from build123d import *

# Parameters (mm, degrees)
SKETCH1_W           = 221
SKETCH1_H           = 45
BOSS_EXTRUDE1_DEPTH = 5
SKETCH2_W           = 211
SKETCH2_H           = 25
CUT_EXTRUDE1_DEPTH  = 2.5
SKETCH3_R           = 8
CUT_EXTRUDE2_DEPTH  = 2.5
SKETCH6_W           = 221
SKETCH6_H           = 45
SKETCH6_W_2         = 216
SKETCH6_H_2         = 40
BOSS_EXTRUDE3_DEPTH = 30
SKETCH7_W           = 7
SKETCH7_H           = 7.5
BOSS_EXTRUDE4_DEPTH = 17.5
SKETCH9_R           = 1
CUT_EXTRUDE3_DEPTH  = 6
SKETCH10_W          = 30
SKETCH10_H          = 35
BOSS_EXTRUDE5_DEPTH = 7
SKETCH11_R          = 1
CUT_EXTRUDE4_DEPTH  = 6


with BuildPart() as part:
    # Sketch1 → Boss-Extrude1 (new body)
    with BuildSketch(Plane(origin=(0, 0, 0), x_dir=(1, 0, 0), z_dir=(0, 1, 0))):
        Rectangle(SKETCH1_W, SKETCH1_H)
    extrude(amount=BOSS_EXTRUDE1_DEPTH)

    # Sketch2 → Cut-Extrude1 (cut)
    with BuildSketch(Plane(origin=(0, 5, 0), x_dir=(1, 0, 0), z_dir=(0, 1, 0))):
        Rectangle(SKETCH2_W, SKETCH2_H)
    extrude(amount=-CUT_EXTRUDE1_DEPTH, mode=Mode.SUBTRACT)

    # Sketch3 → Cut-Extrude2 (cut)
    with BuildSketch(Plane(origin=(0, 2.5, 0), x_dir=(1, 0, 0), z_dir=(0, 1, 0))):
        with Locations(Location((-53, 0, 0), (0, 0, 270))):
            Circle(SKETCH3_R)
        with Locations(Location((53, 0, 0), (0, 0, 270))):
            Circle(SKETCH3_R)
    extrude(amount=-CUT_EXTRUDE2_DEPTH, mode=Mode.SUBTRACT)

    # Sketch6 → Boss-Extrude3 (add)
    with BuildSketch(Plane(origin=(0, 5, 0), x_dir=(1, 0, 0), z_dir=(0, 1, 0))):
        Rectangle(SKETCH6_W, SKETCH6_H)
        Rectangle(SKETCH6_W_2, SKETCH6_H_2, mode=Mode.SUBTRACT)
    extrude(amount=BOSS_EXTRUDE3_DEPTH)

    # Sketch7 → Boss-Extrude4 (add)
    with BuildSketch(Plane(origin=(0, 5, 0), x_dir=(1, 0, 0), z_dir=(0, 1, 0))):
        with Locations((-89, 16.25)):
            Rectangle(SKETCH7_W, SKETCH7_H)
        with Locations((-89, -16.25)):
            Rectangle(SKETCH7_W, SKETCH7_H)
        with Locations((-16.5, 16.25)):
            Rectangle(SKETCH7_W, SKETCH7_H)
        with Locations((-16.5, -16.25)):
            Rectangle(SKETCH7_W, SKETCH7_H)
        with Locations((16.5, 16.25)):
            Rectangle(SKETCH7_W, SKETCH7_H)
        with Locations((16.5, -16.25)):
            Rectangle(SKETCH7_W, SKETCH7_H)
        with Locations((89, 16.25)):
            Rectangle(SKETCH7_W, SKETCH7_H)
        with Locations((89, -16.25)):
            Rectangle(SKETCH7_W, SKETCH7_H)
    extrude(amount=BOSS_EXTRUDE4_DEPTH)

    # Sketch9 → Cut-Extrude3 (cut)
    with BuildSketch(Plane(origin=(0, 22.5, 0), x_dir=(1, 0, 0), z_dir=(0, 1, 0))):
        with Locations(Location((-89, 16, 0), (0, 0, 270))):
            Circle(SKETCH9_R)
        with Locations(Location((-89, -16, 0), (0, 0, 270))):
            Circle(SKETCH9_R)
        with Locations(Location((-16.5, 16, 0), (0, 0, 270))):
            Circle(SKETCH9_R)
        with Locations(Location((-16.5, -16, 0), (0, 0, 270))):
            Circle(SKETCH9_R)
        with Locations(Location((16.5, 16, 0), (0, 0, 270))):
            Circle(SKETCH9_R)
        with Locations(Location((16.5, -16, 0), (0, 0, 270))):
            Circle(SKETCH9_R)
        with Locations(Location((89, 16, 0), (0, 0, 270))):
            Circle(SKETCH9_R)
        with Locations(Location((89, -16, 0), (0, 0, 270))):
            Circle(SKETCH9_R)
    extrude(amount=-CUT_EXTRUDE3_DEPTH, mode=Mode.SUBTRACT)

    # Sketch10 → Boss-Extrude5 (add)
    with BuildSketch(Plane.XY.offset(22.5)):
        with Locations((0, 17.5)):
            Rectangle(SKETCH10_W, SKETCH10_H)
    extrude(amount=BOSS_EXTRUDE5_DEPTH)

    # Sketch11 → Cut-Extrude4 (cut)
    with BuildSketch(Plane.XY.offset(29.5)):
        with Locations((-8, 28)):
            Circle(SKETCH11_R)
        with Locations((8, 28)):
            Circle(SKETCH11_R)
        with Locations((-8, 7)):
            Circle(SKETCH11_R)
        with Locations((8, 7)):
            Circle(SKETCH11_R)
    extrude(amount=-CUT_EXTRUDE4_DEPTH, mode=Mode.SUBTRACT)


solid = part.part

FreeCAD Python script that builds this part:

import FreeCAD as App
import Part
import Sketcher

V = App.Vector
Q = App.Units.Quantity


def add_polygon(sketch, points):
    """Adds a closed chain of lines whose ends are joined by coincident constraints."""
    first, n = sketch.GeometryCount, len(points)
    for a, b in zip(points, points[1:] + points[:1]):
        sketch.addGeometry(Part.LineSegment(App.Vector(*a, 0), App.Vector(*b, 0)), False)
    for i in range(n):
        sketch.addConstraint(Sketcher.Constraint("Coincident", first + i, 2, first + (i + 1) % n, 1))

doc = App.newDocument("Part")
body = doc.addObject("PartDesign::Body", "Body")

# Sketch on XZ plane
sketch1 = body.newObject("Sketcher::SketchObject", "Sketch")
sketch1.AttachmentSupport = (doc.getObject("XZ_Plane"), [""])
sketch1.MapMode = "FlatFace"
add_polygon(sketch1, [(-110.5, -22.5), (-110.5, 22.5), (110.5, 22.5), (110.5, -22.5)])  # lines 0-3
sketch1.addConstraint([
    Sketcher.Constraint("Vertical", 0),
    Sketcher.Constraint("Horizontal", 1),
    Sketcher.Constraint("Vertical", 2),
    Sketcher.Constraint("Horizontal", 3),
    Sketcher.Constraint("Symmetric", 0, 2, 2, 2, -1, 1),
    Sketcher.Constraint("DistanceX", 1, 1, 1, 2, Q("221 mm")),
    Sketcher.Constraint("DistanceY", 0, 1, 0, 2, Q("45 mm")),
])
pad1 = body.newObject("PartDesign::Pad", "Pad")
pad1.Profile = sketch1
pad1.Length = 5
pad1.Reversed = True

# Sketch on XZ plane
sketch2 = body.newObject("Sketcher::SketchObject", "Sketch001")
sketch2.AttachmentSupport = (doc.getObject("XZ_Plane"), [""])
sketch2.MapMode = "FlatFace"
sketch2.AttachmentOffset = App.Placement(V(0, 0, -5), App.Rotation())
add_polygon(sketch2, [(-105.5, -12.5), (-105.5, 12.5), (105.5, 12.5), (105.5, -12.5)])  # lines 0-3
sketch2.addConstraint([
    Sketcher.Constraint("Vertical", 0),
    Sketcher.Constraint("Horizontal", 1),
    Sketcher.Constraint("Vertical", 2),
    Sketcher.Constraint("Horizontal", 3),
    Sketcher.Constraint("Symmetric", 0, 2, 2, 2, -1, 1),
    Sketcher.Constraint("DistanceX", 1, 1, 1, 2, Q("211 mm")),
    Sketcher.Constraint("DistanceY", 0, 1, 0, 2, Q("25 mm")),
])
pocket1 = body.newObject("PartDesign::Pocket", "Pocket")
pocket1.Profile = sketch2
pocket1.Length = 2.5
pocket1.Reversed = True

# Sketch on XZ plane
sketch3 = body.newObject("Sketcher::SketchObject", "Sketch002")
sketch3.AttachmentSupport = (doc.getObject("XZ_Plane"), [""])
sketch3.MapMode = "FlatFace"
sketch3.AttachmentOffset = App.Placement(V(0, 0, -2.5), App.Rotation())
sketch3.addGeometry([
    Part.Circle(V(-53, 0, 0), V(0, 0, 1), 8),
    Part.Circle(V(53, 0, 0), V(0, 0, 1), 8),
], False)
sketch3.addConstraint([
    Sketcher.Constraint("Equal", 0, 1),
    Sketcher.Constraint("Symmetric", 0, 3, 1, 3, -1, 1),
    Sketcher.Constraint("PointOnObject", 0, 3, -1),
    Sketcher.Constraint("Diameter", 0, Q("16 mm")),
    Sketcher.Constraint("DistanceX", 0, 3, -1, 1, Q("53 mm")),
])
pocket2 = body.newObject("PartDesign::Pocket", "Pocket001")
pocket2.Profile = sketch3
pocket2.Length = 2.5
pocket2.Reversed = True

# Sketch on XZ plane
sketch4 = body.newObject("Sketcher::SketchObject", "Sketch003")
sketch4.AttachmentSupport = (doc.getObject("XZ_Plane"), [""])
sketch4.MapMode = "FlatFace"
sketch4.AttachmentOffset = App.Placement(V(0, 0, -5), App.Rotation())
add_polygon(sketch4, [(-110.5, -22.5), (-110.5, 22.5), (110.5, 22.5), (110.5, -22.5)])  # lines 0-3
add_polygon(sketch4, [(108, 20), (-108, 20), (-108, -20), (108, -20)])  # lines 4-7
sketch4.addConstraint([
    Sketcher.Constraint("Vertical", 0),
    Sketcher.Constraint("Horizontal", 1),
    Sketcher.Constraint("Vertical", 2),
    Sketcher.Constraint("Horizontal", 3),
    Sketcher.Constraint("Horizontal", 4),
    Sketcher.Constraint("Vertical", 5),
    Sketcher.Constraint("Horizontal", 6),
    Sketcher.Constraint("Vertical", 7),
    Sketcher.Constraint("Symmetric", 0, 2, 2, 2, -1, 1),
    Sketcher.Constraint("Symmetric", 4, 2, 6, 2, -1, 1),
    Sketcher.Constraint("DistanceX", 1, 1, 1, 2, Q("221 mm")),
    Sketcher.Constraint("DistanceX", 4, 2, 4, 1, Q("216 mm")),
    Sketcher.Constraint("DistanceY", 0, 1, 0, 2, Q("45 mm")),
    Sketcher.Constraint("DistanceY", 5, 2, 5, 1, Q("40 mm")),
])
pad2 = body.newObject("PartDesign::Pad", "Pad001")
pad2.Profile = sketch4
pad2.Length = 30
pad2.Reversed = True

# Sketch on XZ plane
sketch5 = body.newObject("Sketcher::SketchObject", "Sketch004")
sketch5.AttachmentSupport = (doc.getObject("XZ_Plane"), [""])
sketch5.MapMode = "FlatFace"
sketch5.AttachmentOffset = App.Placement(V(0, 0, -5), App.Rotation())
add_polygon(sketch5, [(-92.5, -20), (-92.5, -12.5), (-85.5, -12.5), (-85.5, -20)])  # lines 0-3
add_polygon(sketch5, [(-92.5, 12.5), (-92.5, 20), (-85.5, 20), (-85.5, 12.5)])  # lines 4-7
add_polygon(sketch5, [(-20, -20), (-20, -12.5), (-13, -12.5), (-13, -20)])  # lines 8-11
add_polygon(sketch5, [(-20, 12.5), (-20, 20), (-13, 20), (-13, 12.5)])  # lines 12-15
add_polygon(sketch5, [(13, -20), (13, -12.5), (20, -12.5), (20, -20)])  # lines 16-19
add_polygon(sketch5, [(13, 12.5), (13, 20), (20, 20), (20, 12.5)])  # lines 20-23
add_polygon(sketch5, [(85.5, -20), (85.5, -12.5), (92.5, -12.5), (92.5, -20)])  # lines 24-27
add_polygon(sketch5, [(85.5, 12.5), (85.5, 20), (92.5, 20), (92.5, 12.5)])  # lines 28-31
sketch5.addConstraint([
    Sketcher.Constraint("Vertical", 0),
    Sketcher.Constraint("Horizontal", 1),
    Sketcher.Constraint("Vertical", 2),
    Sketcher.Constraint("Horizontal", 3),
    Sketcher.Constraint("Vertical", 4),
    Sketcher.Constraint("Horizontal", 5),
    Sketcher.Constraint("Vertical", 6),
    Sketcher.Constraint("Horizontal", 7),
    Sketcher.Constraint("Vertical", 8),
    Sketcher.Constraint("Horizontal", 9),
    Sketcher.Constraint("Vertical", 10),
    Sketcher.Constraint("Horizontal", 11),
    Sketcher.Constraint("Vertical", 12),
    Sketcher.Constraint("Horizontal", 13),
    Sketcher.Constraint("Vertical", 14),
    Sketcher.Constraint("Horizontal", 15),
    Sketcher.Constraint("Vertical", 16),
    Sketcher.Constraint("Horizontal", 17),
    Sketcher.Constraint("Vertical", 18),
    Sketcher.Constraint("Horizontal", 19),
    Sketcher.Constraint("Vertical", 20),
    Sketcher.Constraint("Horizontal", 21),
    Sketcher.Constraint("Vertical", 22),
    Sketcher.Constraint("Horizontal", 23),
    Sketcher.Constraint("Vertical", 24),
    Sketcher.Constraint("Horizontal", 25),
    Sketcher.Constraint("Vertical", 26),
    Sketcher.Constraint("Horizontal", 27),
    Sketcher.Constraint("Vertical", 28),
    Sketcher.Constraint("Horizontal", 29),
    Sketcher.Constraint("Vertical", 30),
    Sketcher.Constraint("Horizontal", 31),
    Sketcher.Constraint("Symmetric", 14, 2, 16, 2, -1, 1),
    Sketcher.Constraint("Symmetric", 12, 2, 18, 2, -1, 1),
    Sketcher.Constraint("Symmetric", 10, 2, 20, 2, -1, 1),
    Sketcher.Constraint("Symmetric", 8, 2, 22, 2, -1, 1),
    Sketcher.Constraint("Symmetric", 6, 2, 24, 2, -1, 1),
    Sketcher.Constraint("Symmetric", 4, 2, 26, 2, -1, 1),
    Sketcher.Constraint("Symmetric", 2, 2, 28, 2, -1, 1),
    Sketcher.Constraint("Symmetric", 0, 2, 30, 2, -1, 1),
    Sketcher.Constraint("Symmetric", 9, 2, 16, 2, -2),
    Sketcher.Constraint("Symmetric", 11, 2, 18, 2, -2),
    Sketcher.Constraint("Symmetric", 1, 2, 24, 2, -2),
    Sketcher.Constraint("Symmetric", 3, 2, 26, 2, -2),
    Sketcher.Constraint("Horizontal", 1, 2, 8, 2),
    Sketcher.Constraint("Horizontal", 3, 2, 10, 2),
    Sketcher.Constraint("Equal", 7, 9),
    Sketcher.Constraint("DistanceX", 1, 1, 1, 2, Q("7 mm")),
    Sketcher.Constraint("DistanceY", 0, 1, 0, 2, Q("7.5 mm")),
    Sketcher.Constraint("DistanceY", 2, 2, -1, 1, Q("20 mm")),
    Sketcher.Constraint("DistanceX", 8, 2, -1, 1, Q("20 mm")),
    Sketcher.Constraint("DistanceX", 0, 2, -1, 1, Q("92.5 mm")),
])
pad3 = body.newObject("PartDesign::Pad", "Pad002")
pad3.Profile = sketch5
pad3.Length = 17.5
pad3.Reversed = True

# Sketch on XZ plane
sketch6 = body.newObject("Sketcher::SketchObject", "Sketch005")
sketch6.AttachmentSupport = (doc.getObject("XZ_Plane"), [""])
sketch6.MapMode = "FlatFace"
sketch6.AttachmentOffset = App.Placement(V(0, 0, -22.5), App.Rotation())
sketch6.addGeometry([
    Part.Circle(V(-89, -16, 0), V(0, 0, 1), 1),  # 0
    Part.Circle(V(-89, 16, 0), V(0, 0, 1), 1),  # 1
    Part.Circle(V(-16.5, -16, 0), V(0, 0, 1), 1),  # 2
    Part.Circle(V(-16.5, 16, 0), V(0, 0, 1), 1),  # 3
    Part.Circle(V(16.5, -16, 0), V(0, 0, 1), 1),  # 4
    Part.Circle(V(16.5, 16, 0), V(0, 0, 1), 1),  # 5
    Part.Circle(V(89, -16, 0), V(0, 0, 1), 1),  # 6
    Part.Circle(V(89, 16, 0), V(0, 0, 1), 1),  # 7
], False)
sketch6.addConstraint([
    Sketcher.Constraint("Equal", 0, 1),
    Sketcher.Constraint("Equal", 1, 2),
    Sketcher.Constraint("Equal", 2, 3),
    Sketcher.Constraint("Equal", 3, 4),
    Sketcher.Constraint("Equal", 4, 5),
    Sketcher.Constraint("Equal", 5, 6),
    Sketcher.Constraint("Equal", 6, 7),
    Sketcher.Constraint("Symmetric", 3, 3, 4, 3, -1, 1),
    Sketcher.Constraint("Symmetric", 2, 3, 5, 3, -1, 1),
    Sketcher.Constraint("Symmetric", 1, 3, 6, 3, -1, 1),
    Sketcher.Constraint("Symmetric", 0, 3, 7, 3, -1, 1),
    Sketcher.Constraint("Symmetric", 2, 3, 4, 3, -2),
    Sketcher.Constraint("Symmetric", 0, 3, 6, 3, -2),
    Sketcher.Constraint("Horizontal", 0, 3, 2, 3),
    Sketcher.Constraint("Diameter", 0, Q("2 mm")),
    Sketcher.Constraint("DistanceX", 0, 3, -1, 1, Q("89 mm")),
    Sketcher.Constraint("DistanceY", 0, 3, -1, 1, Q("16 mm")),
    Sketcher.Constraint("DistanceX", 2, 3, 4, 3, Q("33 mm")),
])
pocket3 = body.newObject("PartDesign::Pocket", "Pocket002")
pocket3.Profile = sketch6
pocket3.Length = 6
pocket3.Reversed = True

# Sketch on XY plane
sketch7 = body.newObject("Sketcher::SketchObject", "Sketch006")
sketch7.AttachmentSupport = (doc.getObject("XY_Plane"), [""])
sketch7.MapMode = "FlatFace"
sketch7.AttachmentOffset = App.Placement(V(0, 0, 22.5), App.Rotation())
add_polygon(sketch7, [(-15, 35), (-15, 0), (15, 0), (15, 35)])  # lines 0-3
sketch7.addConstraint([
    Sketcher.Constraint("Vertical", 0),
    Sketcher.Constraint("Horizontal", 1),
    Sketcher.Constraint("Vertical", 2),
    Sketcher.Constraint("Horizontal", 3),
    Sketcher.Constraint("Symmetric", 0, 2, 1, 2, -1, 1),
    Sketcher.Constraint("DistanceX", 1, 1, 1, 2, Q("30 mm")),
    Sketcher.Constraint("DistanceY", 0, 2, 0, 1, Q("35 mm")),
])
pad4 = body.newObject("PartDesign::Pad", "Pad003")
pad4.Profile = sketch7
pad4.Length = 7

# Sketch on XY plane
sketch8 = body.newObject("Sketcher::SketchObject", "Sketch007")
sketch8.AttachmentSupport = (doc.getObject("XY_Plane"), [""])
sketch8.MapMode = "FlatFace"
sketch8.AttachmentOffset = App.Placement(V(0, 0, 29.5), App.Rotation())
sketch8.addGeometry([
    Part.Circle(V(-8, 28, 0), V(0, 0, 1), 1),
    Part.Circle(V(8, 28, 0), V(0, 0, 1), 1),
    Part.Circle(V(-8, 7, 0), V(0, 0, 1), 1),
    Part.Circle(V(8, 7, 0), V(0, 0, 1), 1),
], False)
sketch8.addConstraint([
    Sketcher.Constraint("Equal", 0, 1),
    Sketcher.Constraint("Equal", 1, 2),
    Sketcher.Constraint("Equal", 2, 3),
    Sketcher.Constraint("Symmetric", 0, 3, 1, 3, -2),
    Sketcher.Constraint("Symmetric", 2, 3, 3, 3, -2),
    Sketcher.Constraint("Vertical", 0, 3, 2, 3),
    Sketcher.Constraint("Diameter", 0, Q("2 mm")),
    Sketcher.Constraint("DistanceX", 0, 3, -1, 1, Q("8 mm")),
    Sketcher.Constraint("DistanceY", -1, 1, 0, 3, Q("28 mm")),
    Sketcher.Constraint("DistanceY", -1, 1, 2, 3, Q("7 mm")),
])
pocket4 = body.newObject("PartDesign::Pocket", "Pocket003")
pocket4.Profile = sketch8
pocket4.Length = 6

doc.recompute()
